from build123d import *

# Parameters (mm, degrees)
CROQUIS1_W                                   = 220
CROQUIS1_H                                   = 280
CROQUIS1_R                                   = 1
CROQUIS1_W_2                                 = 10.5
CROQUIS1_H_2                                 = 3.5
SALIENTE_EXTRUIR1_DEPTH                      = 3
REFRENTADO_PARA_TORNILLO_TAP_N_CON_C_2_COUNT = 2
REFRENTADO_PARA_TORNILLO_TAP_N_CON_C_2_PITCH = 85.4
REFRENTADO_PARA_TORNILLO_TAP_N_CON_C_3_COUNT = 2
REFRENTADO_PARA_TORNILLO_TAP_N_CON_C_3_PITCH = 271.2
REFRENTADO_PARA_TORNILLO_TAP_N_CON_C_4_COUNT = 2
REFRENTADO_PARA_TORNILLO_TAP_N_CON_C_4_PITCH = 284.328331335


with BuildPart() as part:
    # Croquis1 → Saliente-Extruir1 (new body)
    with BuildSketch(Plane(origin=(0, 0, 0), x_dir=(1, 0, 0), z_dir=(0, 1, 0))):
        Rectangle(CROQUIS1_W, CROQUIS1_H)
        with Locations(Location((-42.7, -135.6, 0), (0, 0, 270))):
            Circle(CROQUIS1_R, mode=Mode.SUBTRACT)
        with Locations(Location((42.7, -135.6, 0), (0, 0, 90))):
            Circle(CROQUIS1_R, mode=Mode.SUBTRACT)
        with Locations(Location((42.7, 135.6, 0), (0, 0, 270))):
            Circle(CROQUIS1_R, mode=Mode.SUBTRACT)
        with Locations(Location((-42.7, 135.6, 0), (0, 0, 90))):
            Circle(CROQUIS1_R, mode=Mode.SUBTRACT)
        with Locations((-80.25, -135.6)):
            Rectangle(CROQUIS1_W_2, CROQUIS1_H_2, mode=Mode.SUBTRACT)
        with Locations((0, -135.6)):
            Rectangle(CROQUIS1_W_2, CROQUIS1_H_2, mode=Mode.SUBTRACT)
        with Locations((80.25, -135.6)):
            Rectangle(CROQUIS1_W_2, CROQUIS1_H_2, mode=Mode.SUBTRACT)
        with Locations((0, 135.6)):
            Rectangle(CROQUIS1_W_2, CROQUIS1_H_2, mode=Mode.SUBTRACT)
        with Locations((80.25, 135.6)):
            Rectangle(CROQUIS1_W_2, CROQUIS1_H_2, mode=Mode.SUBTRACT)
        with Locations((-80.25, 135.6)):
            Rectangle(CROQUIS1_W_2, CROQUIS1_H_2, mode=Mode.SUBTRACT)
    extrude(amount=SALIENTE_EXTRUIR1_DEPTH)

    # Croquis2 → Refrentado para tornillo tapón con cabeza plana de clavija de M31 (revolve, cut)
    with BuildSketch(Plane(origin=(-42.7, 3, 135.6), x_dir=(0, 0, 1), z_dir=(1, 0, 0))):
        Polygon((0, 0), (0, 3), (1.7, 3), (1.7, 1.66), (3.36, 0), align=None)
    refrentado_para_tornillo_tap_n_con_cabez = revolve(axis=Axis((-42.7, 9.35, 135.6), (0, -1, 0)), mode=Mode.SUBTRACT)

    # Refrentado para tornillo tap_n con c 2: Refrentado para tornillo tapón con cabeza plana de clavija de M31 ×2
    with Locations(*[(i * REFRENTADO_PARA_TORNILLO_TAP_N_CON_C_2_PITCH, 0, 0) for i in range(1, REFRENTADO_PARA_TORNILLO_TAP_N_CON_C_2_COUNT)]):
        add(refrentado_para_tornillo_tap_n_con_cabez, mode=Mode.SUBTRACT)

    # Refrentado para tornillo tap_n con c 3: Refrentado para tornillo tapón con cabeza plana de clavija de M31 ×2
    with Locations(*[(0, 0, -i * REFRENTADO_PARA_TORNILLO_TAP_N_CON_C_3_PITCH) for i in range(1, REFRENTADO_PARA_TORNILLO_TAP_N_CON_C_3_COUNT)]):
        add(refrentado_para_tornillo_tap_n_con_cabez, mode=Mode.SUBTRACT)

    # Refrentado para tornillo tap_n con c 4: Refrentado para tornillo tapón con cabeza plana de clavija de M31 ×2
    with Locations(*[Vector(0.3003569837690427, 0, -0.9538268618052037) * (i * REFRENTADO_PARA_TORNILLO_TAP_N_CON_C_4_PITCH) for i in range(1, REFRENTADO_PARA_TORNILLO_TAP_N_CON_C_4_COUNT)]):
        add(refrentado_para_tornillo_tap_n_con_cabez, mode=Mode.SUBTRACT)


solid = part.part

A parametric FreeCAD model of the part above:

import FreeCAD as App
import Part
import Sketcher
from FreeCAD import Vector
Q = App.Units.Quantity


def add_polygon(sketch, points):
    """Adds a closed chain of lines whose ends are joined by coincident constraints."""
    first, n = sketch.GeometryCount, len(points)
    for a, b in zip(points, points[1:] + points[:1]):
        sketch.addGeometry(Part.LineSegment(App.Vector(*a, 0), App.Vector(*b, 0)), False)
    for i in range(n):
        sketch.addConstraint(Sketcher.Constraint("Coincident", first + i, 2, first + (i + 1) % n, 1))

doc = App.newDocument("Part")
body = doc.addObject("PartDesign::Body", "Body")

# Sketch on XZ plane
sketch1 = doc.addObject("Sketcher::SketchObject", "Sketch")
body.addObject(sketch1)
sketch1.AttachmentSupport = (doc.XZ_Plane, [""])
sketch1.MapMode = "FlatFace"
add_polygon(sketch1, [(-110, -140), (-110, 140), (110, 140), (110, -140)])  # lines 0-3
add_polygon(sketch1, [(-75, 137.3), (-85.5, 137.3), (-85.5, 133.8), (-75, 133.8)])  # lines 4-7
sketch1.addGeometry(Part.Circle(Vector(-42.7, 135.6, 0), Vector(0, 0, 1), 1), False)  # 8
add_polygon(sketch1, [(5.2, 137.3), (-5.2, 137.3), (-5.2, 133.8), (5.2, 133.8)])  # lines 9-12
sketch1.addGeometry(Part.Circle(Vector(42.7, 135.6, 0), Vector(0, 0, 1), 1), False)  # 13
add_polygon(sketch1, [(85.5, 137.3), (75, 137.3), (75, 133.8), (85.5, 133.8)])  # lines 14-17
add_polygon(sketch1, [(-75, -133.8), (-85.5, -133.8), (-85.5, -137.3), (-75, -137.3)])  # lines 18-21
sketch1.addGeometry(Part.Circle(Vector(-42.7, -135.6, 0), Vector(0, 0, 1), 1), False)  # 22
add_polygon(sketch1, [(5.2, -133.8), (-5.2, -133.8), (-5.2, -137.3), (5.2, -137.3)])  # lines 23-26
sketch1.addGeometry(Part.Circle(Vector(42.7, -135.6, 0), Vector(0, 0, 1), 1), False)  # 27
add_polygon(sketch1, [(85.5, -133.8), (75, -133.8), (75, -137.3), (85.5, -137.3)])  # lines 28-31
sketch1.addConstraint(Sketcher.Constraint("Vertical", 0))
sketch1.addConstraint(Sketcher.Constraint("Horizontal", 1))
sketch1.addConstraint(Sketcher.Constraint("Vertical", 2))
sketch1.addConstraint(Sketcher.Constraint("Horizontal", 3))
sketch1.addConstraint(Sketcher.Constraint("Horizontal", 4))
sketch1.addConstraint(Sketcher.Constraint("Vertical", 5))
sketch1.addConstraint(Sketcher.Constraint("Horizontal", 6))
sketch1.addConstraint(Sketcher.Constraint("Vertical", 7))
sketch1.addConstraint(Sketcher.Constraint("Horizontal", 9))
sketch1.addConstraint(Sketcher.Constraint("Vertical", 10))
sketch1.addConstraint(Sketcher.Constraint("Horizontal", 11))
sketch1.addConstraint(Sketcher.Constraint("Vertical", 12))
sketch1.addConstraint(Sketcher.Constraint("Horizontal", 14))
sketch1.addConstraint(Sketcher.Constraint("Vertical", 15))
sketch1.addConstraint(Sketcher.Constraint("Horizontal", 16))
sketch1.addConstraint(Sketcher.Constraint("Vertical", 17))
sketch1.addConstraint(Sketcher.Constraint("Horizontal", 18))
sketch1.addConstraint(Sketcher.Constraint("Vertical", 19))
sketch1.addConstraint(Sketcher.Constraint("Horizontal", 20))
sketch1.addConstraint(Sketcher.Constraint("Vertical", 21))
sketch1.addConstraint(Sketcher.Constraint("Horizontal", 23))
sketch1.addConstraint(Sketcher.Constraint("Vertical", 24))
sketch1.addConstraint(Sketcher.Constraint("Horizontal", 25))
sketch1.addConstraint(Sketcher.Constraint("Vertical", 26))
sketch1.addConstraint(Sketcher.Constraint("Horizontal", 28))
sketch1.addConstraint(Sketcher.Constraint("Vertical", 29))
sketch1.addConstraint(Sketcher.Constraint("Horizontal", 30))
sketch1.addConstraint(Sketcher.Constraint("Vertical", 31))
sketch1.addConstraint(Sketcher.Constraint("Equal", 8, 13))
sketch1.addConstraint(Sketcher.Constraint("Equal", 13, 22))
sketch1.addConstraint(Sketcher.Constraint("Equal", 22, 27))
sketch1.addConstraint(Sketcher.Constraint("Symmetric", 13, 3, 22, 3, -1, 1))
sketch1.addConstraint(Sketcher.Constraint("Symmetric", 8, 3, 27, 3, -1, 1))
sketch1.addConstraint(Sketcher.Constraint("Symmetric", 0, 2, 2, 2, -1, 1))
sketch1.addConstraint(Sketcher.Constraint("Symmetric", 16, 2, 18, 2, -1, 1))
sketch1.addConstraint(Sketcher.Constraint("Symmetric", 14, 2, 20, 2, -1, 1))
sketch1.addConstraint(Sketcher.Constraint("Symmetric", 11, 2, 23, 2, -1, 1))
sketch1.addConstraint(Sketcher.Constraint("Symmetric", 9, 2, 25, 2, -1, 1))
sketch1.addConstraint(Sketcher.Constraint("Symmetric", 6, 2, 28, 2, -1, 1))
sketch1.addConstraint(Sketcher.Constraint("Symmetric", 4, 2, 30, 2, -1, 1))
sketch1.addConstraint(Sketcher.Constraint("Symmetric", 8, 3, 13, 3, -2))
sketch1.addConstraint(Sketcher.Constraint("Symmetric", 7, 2, 14, 2, -2))
sketch1.addConstraint(Sketcher.Constraint("Symmetric", 5, 2, 16, 2, -2))
sketch1.addConstraint(Sketcher.Constraint("Horizontal", 7, 2, 9, 2))
sketch1.addConstraint(Sketcher.Constraint("Horizontal", 6, 2, 10, 2))
sketch1.addConstraint(Sketcher.Constraint("Vertical", 10, 2, 23, 2))
sketch1.addConstraint(Sketcher.Constraint("Equal", 6, 9))
sketch1.addConstraint(Sketcher.Constraint("Diameter", 8, Q("2 mm")))
sketch1.addConstraint(Sketcher.Constraint("DistanceX", 1, 1, 1, 2, Q("220 mm")))
sketch1.addConstraint(Sketcher.Constraint("DistanceY", 0, 1, 0, 2, Q("280 mm")))
sketch1.addConstraint(Sketcher.Constraint("DistanceX", 4, 2, 4, 1, Q("10.5 mm")))
sketch1.addConstraint(Sketcher.Constraint("DistanceY", 5, 2, 5, 1, Q("3.5 mm")))
sketch1.addConstraint(Sketcher.Constraint("DistanceX", 6, 2, -1, 1, Q("75 mm")))
sketch1.addConstraint(Sketcher.Constraint("DistanceX", 8, 3, -1, 1, Q("42.7 mm")))
sketch1.addConstraint(Sketcher.Constraint("DistanceY", -1, 1, 8, 3, Q("135.6 mm")))
sketch1.addConstraint(Sketcher.Constraint("DistanceY", 18, 2, 5, 2, Q("267.7 mm")))
pad1 = doc.addObject("PartDesign::Pad", "Pad")
body.addObject(pad1)
pad1.Profile = sketch1
pad1.Length = 3
pad1.Reversed = True

# Sketch on YZ plane
sketch2 = doc.addObject("Sketcher::SketchObject", "Sketch001")
body.addObject(sketch2)
sketch2.AttachmentSupport = (doc.YZ_Plane, [""])
sketch2.MapMode = "FlatFace"
sketch2.AttachmentOffset = App.Placement(Vector(0, 0, -42.7), App.Rotation())
add_polygon(sketch2, [(0, 135.6), (3, 135.6), (3, 139), (1.3, 137.3), (0, 137.3)])  # lines 0-4
sketch2.addGeometry(Part.LineSegment(Vector(3, 135.6, 0), Vector(0, 135.6, 0)), True)  # axis
sketch2.addConstraint(Sketcher.Constraint("Horizontal", 0))
sketch2.addConstraint(Sketcher.Constraint("Vertical", 1))
sketch2.addConstraint(Sketcher.Constraint("Horizontal", 3))
sketch2.addConstraint(Sketcher.Constraint("Vertical", 4))
sketch2.addConstraint(Sketcher.Constraint("Horizontal", 5))
sketch2.addConstraint(Sketcher.Constraint("Coincident", 5, 1, 0, 2))
sketch2.addConstraint(Sketcher.Constraint("PointOnObject", 3, 2, -2))
sketch2.addConstraint(Sketcher.Constraint("PointOnObject", 5, 2, -2))
sketch2.addConstraint(Sketcher.Constraint("DistanceX", 0, 1, 0, 2, Q("3 mm")))
sketch2.addConstraint(Sketcher.Constraint("Angle", 2, Q("-135 deg")))
sketch2.addConstraint(Sketcher.Constraint("DistanceY", 4, 2, 4, 1, Q("1.7 mm")))
sketch2.addConstraint(Sketcher.Constraint("DistanceX", 3, 2, 3, 1, Q("1.34 mm")))
sketch2.addConstraint(Sketcher.Constraint("DistanceY", -1, 1, 0, 2, Q("135.6 mm")))
groove = doc.addObject("PartDesign::Groove", "Groove")
body.addObject(groove)
groove.Profile = sketch2
groove.ReferenceAxis = (sketch2, ["Axis0"])
groove.Angle = 360
doc.recompute()

linearpattern = doc.addObject("PartDesign::LinearPattern", "LinearPattern")
body.addObject(linearpattern)
linearpattern.Originals = [groove]
linearpattern.Direction = (doc.X_Axis, [""])
linearpattern.Mode = "offset"
linearpattern.Offset = 85.4
linearpattern.Occurrences = 2
body.Tip = linearpattern
doc.recompute()

linearpattern2 = doc.addObject("PartDesign::LinearPattern", "LinearPattern001")
body.addObject(linearpattern2)
linearpattern2.Originals = [groove]
linearpattern2.Direction = (doc.Z_Axis, [""])
linearpattern2.Mode = "offset"
linearpattern2.Offset = 271.2
linearpattern2.Occurrences = 2
linearpattern2.Reversed = True
body.Tip = linearpattern2
doc.recompute()

datumline = doc.addObject("PartDesign::Line", "DatumLine")
body.addObject(datumline)
datumline.Placement = App.Placement(Vector(0, 0, 0), App.Rotation(Vector(0, 0, 1), Vector(0.300356984, 0, -0.953826862)))
linearpattern3 = doc.addObject("PartDesign::LinearPattern", "LinearPattern002")
body.addObject(linearpattern3)
linearpattern3.Originals = [groove]
linearpattern3.Direction = (datumline, [""])
linearpattern3.Mode = "offset"
linearpattern3.Offset = 284.328331
linearpattern3.Occurrences = 2
body.Tip = linearpattern3

doc.recompute()
